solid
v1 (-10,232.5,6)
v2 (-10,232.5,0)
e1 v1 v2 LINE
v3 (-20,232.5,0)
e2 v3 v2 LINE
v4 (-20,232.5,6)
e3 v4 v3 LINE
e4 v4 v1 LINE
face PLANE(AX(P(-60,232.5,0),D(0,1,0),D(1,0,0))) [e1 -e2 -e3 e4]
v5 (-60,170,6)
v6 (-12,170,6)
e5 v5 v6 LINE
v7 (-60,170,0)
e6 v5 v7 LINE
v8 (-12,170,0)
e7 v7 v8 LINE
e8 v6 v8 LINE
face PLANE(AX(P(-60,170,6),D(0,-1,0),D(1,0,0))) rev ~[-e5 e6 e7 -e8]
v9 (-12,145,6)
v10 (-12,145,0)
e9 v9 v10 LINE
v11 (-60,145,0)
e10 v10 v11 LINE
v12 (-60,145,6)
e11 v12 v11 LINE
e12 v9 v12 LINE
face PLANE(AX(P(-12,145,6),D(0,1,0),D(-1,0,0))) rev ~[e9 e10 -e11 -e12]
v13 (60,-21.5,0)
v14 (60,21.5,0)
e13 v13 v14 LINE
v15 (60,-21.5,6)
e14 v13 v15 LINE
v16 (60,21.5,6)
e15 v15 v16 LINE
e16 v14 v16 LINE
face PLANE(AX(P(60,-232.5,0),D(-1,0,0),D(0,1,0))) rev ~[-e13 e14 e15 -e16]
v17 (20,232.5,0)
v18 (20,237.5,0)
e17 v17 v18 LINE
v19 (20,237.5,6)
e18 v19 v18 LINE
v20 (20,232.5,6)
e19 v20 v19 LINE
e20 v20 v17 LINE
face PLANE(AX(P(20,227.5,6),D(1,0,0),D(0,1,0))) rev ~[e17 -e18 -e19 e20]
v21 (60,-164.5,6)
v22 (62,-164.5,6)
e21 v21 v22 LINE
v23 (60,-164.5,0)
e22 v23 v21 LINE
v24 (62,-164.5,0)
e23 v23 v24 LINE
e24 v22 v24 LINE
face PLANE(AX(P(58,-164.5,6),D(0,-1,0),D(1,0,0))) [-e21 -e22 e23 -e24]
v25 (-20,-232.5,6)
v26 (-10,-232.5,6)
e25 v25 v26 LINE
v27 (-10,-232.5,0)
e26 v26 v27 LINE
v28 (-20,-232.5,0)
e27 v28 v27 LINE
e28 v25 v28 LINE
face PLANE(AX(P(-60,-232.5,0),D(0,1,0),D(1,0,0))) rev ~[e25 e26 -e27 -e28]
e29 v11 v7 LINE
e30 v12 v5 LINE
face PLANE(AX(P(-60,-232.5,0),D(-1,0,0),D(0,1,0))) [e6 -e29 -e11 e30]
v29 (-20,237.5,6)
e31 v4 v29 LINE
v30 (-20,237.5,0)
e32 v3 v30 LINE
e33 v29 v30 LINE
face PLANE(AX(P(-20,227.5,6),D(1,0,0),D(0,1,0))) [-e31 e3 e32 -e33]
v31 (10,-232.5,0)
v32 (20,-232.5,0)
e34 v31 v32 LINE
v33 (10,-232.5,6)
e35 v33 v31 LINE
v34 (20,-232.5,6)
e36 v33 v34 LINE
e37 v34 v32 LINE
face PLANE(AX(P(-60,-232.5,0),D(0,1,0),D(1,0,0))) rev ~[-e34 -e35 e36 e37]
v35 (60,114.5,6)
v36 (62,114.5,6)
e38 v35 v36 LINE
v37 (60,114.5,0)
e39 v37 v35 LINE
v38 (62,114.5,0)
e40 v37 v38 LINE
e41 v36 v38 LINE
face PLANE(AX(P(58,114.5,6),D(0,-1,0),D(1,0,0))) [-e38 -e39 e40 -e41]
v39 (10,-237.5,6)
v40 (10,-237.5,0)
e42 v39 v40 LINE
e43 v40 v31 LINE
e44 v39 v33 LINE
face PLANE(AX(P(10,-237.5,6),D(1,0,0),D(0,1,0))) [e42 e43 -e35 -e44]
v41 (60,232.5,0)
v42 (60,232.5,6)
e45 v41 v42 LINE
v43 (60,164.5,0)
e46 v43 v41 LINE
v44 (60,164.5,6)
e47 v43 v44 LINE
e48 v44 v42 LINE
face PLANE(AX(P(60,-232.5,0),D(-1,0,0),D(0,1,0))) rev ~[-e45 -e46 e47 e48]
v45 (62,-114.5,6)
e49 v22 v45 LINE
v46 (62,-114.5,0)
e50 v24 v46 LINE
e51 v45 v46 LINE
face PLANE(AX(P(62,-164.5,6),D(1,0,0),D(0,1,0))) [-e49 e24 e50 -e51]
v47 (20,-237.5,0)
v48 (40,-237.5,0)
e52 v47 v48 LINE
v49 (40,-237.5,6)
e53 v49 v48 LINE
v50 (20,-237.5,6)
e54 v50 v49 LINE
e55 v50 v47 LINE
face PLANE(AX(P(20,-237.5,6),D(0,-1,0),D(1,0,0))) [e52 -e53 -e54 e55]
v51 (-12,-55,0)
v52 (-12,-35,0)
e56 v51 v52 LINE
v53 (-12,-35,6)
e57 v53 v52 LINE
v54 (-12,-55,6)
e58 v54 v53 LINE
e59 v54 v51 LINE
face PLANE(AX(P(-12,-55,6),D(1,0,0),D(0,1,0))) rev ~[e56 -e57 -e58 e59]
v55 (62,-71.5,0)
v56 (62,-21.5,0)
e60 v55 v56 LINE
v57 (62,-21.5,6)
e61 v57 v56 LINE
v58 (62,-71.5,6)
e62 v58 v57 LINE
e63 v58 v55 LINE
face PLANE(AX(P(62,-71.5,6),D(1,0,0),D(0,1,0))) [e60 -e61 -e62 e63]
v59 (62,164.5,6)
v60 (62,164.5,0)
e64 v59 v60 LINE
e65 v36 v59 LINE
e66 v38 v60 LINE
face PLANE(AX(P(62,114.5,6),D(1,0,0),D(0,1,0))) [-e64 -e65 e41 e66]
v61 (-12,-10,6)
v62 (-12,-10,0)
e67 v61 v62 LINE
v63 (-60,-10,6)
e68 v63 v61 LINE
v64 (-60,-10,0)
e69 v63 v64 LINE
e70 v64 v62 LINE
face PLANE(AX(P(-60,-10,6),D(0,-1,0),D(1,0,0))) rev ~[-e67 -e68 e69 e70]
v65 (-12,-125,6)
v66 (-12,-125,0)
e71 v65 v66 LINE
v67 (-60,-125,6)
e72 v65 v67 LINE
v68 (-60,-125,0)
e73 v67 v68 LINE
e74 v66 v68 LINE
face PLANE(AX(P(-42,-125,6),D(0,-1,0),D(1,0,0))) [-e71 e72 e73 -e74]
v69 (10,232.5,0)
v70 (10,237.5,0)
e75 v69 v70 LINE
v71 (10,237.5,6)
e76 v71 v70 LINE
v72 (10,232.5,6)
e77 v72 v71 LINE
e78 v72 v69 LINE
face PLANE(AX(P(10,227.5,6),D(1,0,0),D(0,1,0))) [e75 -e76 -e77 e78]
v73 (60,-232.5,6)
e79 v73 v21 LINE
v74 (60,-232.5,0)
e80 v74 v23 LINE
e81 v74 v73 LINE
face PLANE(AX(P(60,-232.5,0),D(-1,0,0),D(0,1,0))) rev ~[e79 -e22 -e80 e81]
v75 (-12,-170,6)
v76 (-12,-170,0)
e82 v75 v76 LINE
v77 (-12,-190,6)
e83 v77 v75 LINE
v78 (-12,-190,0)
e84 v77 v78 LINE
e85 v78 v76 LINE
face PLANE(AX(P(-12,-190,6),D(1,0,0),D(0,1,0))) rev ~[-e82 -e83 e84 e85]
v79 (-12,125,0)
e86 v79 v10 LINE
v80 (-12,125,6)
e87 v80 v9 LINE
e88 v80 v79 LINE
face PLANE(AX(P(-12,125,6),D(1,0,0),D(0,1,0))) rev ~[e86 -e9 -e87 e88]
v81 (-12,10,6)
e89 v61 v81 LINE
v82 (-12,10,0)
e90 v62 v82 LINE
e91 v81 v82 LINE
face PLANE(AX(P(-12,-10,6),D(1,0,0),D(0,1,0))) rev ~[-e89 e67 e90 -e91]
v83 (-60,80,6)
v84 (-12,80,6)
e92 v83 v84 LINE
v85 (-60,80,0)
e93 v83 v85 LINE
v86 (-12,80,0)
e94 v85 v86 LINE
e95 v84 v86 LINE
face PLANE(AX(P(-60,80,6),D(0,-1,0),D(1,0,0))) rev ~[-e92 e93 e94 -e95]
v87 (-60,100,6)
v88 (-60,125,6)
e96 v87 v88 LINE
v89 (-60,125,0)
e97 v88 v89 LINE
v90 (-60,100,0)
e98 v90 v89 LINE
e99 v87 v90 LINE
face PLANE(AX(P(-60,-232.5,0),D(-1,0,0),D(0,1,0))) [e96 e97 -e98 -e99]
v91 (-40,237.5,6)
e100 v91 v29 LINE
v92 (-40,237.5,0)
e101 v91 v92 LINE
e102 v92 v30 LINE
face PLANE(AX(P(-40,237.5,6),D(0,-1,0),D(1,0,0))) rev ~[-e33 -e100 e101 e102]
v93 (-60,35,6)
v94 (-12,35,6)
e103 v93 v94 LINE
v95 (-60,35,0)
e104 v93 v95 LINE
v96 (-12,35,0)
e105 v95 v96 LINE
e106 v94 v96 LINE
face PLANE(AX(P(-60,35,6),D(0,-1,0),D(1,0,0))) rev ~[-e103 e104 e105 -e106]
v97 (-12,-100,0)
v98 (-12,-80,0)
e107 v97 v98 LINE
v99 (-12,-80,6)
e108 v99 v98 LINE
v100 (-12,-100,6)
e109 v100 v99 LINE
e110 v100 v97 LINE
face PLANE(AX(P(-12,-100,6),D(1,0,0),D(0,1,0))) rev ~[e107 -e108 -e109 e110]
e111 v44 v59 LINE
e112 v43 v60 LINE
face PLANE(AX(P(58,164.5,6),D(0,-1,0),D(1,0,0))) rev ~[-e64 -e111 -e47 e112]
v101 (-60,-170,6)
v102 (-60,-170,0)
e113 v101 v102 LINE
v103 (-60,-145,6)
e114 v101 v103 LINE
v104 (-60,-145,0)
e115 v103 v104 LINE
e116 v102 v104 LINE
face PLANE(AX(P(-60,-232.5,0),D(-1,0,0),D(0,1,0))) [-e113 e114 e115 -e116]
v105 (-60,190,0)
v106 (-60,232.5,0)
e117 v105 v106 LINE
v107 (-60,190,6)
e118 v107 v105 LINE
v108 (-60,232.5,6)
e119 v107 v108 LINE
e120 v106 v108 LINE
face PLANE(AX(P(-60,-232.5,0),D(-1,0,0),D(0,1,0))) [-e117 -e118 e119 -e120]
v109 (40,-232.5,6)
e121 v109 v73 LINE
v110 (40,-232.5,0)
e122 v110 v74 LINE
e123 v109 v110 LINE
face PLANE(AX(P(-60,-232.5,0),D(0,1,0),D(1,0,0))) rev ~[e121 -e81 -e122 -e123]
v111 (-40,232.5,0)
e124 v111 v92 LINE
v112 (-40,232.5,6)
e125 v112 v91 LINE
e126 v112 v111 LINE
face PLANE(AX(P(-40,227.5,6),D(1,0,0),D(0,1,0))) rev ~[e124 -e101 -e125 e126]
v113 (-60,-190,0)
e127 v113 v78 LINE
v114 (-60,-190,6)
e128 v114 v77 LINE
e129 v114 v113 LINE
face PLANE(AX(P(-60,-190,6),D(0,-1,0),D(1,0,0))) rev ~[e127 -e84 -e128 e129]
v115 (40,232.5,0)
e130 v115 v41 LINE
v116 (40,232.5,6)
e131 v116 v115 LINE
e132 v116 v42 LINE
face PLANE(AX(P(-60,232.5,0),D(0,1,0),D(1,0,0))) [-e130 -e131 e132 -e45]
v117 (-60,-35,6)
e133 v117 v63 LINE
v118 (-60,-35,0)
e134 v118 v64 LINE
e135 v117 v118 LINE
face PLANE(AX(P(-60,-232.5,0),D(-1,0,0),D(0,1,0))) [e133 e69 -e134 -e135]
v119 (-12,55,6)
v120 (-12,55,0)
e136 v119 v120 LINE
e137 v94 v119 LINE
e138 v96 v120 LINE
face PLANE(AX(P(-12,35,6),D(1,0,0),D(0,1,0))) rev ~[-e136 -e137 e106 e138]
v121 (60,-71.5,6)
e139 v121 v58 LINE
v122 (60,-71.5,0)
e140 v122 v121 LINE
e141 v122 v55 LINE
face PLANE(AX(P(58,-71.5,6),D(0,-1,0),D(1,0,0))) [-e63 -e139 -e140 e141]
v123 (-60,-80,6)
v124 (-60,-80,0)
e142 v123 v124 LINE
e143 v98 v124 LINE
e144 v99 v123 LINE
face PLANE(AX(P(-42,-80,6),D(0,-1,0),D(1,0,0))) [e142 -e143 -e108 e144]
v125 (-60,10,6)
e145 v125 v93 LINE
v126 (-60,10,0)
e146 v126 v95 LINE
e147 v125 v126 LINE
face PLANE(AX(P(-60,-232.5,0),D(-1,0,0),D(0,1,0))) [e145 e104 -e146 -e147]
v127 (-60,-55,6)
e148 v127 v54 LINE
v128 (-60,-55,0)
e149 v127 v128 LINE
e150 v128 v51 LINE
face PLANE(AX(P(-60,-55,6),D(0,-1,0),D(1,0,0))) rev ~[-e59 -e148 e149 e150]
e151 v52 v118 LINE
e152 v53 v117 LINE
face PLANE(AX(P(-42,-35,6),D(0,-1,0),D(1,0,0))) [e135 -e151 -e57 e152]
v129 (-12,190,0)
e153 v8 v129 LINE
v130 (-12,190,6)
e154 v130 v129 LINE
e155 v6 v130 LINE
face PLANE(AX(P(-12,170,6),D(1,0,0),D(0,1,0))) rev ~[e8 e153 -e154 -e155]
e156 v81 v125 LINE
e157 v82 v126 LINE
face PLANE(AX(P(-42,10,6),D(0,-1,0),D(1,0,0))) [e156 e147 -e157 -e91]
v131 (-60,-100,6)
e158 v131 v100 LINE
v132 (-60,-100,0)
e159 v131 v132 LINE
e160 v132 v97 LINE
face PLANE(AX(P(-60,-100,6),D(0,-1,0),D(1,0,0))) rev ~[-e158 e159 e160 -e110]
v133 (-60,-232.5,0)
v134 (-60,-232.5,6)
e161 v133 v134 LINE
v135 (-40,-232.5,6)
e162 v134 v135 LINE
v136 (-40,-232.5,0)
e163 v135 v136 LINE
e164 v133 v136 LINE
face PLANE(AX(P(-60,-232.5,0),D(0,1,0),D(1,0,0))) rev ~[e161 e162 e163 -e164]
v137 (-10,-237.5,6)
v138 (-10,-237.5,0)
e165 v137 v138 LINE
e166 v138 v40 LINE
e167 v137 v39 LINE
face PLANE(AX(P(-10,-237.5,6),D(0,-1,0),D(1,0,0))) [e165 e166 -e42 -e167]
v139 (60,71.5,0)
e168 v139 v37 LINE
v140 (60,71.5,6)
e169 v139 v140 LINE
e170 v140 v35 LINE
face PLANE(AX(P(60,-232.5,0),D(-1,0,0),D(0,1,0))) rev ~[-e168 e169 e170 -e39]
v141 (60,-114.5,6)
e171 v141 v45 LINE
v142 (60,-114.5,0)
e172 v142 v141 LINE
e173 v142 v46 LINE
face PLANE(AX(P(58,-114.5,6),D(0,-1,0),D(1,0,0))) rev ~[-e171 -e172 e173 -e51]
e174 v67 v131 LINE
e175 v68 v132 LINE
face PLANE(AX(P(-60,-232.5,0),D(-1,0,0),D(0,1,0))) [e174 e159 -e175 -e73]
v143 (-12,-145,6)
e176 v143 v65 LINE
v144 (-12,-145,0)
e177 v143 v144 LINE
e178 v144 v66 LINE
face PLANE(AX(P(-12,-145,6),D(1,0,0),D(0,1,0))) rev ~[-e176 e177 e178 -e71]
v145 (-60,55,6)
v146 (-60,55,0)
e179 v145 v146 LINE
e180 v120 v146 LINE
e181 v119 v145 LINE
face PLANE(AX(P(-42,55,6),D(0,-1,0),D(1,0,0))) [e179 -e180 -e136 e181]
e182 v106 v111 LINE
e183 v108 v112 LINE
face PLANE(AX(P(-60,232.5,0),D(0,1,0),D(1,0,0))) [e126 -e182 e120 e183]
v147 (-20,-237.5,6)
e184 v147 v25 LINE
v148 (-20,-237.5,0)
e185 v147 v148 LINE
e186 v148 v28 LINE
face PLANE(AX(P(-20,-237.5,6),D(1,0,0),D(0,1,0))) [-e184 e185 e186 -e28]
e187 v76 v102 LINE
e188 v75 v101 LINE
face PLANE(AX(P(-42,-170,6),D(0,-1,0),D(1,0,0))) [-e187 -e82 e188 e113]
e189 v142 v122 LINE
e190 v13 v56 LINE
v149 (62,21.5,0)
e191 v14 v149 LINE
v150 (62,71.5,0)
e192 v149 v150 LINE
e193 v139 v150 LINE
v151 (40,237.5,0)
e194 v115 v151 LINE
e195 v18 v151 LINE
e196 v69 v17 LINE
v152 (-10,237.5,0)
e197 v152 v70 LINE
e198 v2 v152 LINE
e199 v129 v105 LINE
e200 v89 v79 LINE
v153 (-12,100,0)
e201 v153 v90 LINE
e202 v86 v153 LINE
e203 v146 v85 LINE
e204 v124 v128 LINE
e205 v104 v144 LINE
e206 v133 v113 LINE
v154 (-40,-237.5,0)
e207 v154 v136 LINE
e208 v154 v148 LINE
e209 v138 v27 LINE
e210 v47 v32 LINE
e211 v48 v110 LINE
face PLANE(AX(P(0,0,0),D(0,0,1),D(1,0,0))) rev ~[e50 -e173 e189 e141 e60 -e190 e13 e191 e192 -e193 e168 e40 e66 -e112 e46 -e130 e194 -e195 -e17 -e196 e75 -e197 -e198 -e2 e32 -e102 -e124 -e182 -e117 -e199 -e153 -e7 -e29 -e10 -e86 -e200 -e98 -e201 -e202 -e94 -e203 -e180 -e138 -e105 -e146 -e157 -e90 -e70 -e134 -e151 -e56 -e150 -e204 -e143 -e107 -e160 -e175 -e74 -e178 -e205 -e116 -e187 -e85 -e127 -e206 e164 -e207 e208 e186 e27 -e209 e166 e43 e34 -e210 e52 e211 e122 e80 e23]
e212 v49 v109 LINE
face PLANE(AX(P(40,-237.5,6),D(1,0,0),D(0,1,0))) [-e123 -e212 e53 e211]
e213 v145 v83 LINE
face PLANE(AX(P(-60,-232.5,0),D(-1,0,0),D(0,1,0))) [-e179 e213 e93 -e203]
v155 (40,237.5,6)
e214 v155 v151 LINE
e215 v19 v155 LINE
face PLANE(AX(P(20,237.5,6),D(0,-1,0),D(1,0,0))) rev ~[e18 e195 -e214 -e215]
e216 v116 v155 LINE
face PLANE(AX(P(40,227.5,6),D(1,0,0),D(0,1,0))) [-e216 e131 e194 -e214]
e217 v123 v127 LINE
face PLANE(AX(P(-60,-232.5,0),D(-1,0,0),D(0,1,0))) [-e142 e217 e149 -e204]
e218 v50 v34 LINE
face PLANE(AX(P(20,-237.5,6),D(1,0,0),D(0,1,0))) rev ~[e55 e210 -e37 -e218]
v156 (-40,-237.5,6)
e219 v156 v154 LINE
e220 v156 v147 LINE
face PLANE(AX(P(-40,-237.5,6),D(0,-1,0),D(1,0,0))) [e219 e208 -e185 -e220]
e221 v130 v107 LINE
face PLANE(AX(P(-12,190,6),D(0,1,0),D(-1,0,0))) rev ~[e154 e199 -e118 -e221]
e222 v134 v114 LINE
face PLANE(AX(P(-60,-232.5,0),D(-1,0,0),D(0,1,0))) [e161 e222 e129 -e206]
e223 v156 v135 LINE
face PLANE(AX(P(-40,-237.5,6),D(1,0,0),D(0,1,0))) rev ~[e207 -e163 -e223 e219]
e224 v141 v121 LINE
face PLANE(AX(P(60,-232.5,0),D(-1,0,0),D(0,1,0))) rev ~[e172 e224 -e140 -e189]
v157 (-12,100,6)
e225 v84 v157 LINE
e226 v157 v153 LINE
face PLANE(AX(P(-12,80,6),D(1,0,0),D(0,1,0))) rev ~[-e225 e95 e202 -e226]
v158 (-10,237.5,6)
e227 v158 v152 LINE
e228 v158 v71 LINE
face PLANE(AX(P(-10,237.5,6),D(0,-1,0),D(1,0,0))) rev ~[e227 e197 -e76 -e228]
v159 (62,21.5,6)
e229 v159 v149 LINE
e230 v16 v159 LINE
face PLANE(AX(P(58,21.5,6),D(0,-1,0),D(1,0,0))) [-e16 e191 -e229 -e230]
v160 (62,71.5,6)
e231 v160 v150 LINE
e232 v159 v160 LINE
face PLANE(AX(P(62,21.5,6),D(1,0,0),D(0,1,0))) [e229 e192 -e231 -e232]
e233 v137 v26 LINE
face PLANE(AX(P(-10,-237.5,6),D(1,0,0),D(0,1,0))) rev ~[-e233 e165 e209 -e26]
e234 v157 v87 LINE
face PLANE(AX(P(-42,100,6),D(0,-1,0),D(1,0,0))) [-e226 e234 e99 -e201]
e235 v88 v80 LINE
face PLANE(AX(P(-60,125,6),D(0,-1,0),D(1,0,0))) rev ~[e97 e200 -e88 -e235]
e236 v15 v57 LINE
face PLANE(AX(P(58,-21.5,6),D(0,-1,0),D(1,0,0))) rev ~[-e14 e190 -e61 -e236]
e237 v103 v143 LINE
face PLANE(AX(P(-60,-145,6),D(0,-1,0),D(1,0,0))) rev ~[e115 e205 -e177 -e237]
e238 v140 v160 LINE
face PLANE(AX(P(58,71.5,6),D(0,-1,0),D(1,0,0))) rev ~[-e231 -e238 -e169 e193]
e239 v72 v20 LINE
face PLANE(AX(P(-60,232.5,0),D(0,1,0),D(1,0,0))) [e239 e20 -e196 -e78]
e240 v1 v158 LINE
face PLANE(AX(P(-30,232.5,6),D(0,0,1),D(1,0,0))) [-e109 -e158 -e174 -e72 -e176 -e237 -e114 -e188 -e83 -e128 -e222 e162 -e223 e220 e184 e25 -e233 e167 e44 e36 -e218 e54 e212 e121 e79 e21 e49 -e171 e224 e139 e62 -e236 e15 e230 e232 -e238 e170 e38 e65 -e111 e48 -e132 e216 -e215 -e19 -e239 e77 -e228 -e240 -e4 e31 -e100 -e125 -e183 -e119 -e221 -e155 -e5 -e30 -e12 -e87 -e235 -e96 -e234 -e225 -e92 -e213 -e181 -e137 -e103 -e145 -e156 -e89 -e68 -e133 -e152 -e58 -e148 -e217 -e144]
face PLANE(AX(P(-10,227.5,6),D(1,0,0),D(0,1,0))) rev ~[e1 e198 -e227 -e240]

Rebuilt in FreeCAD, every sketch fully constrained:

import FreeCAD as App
import Part
import Sketcher
from FreeCAD import Vector
Q = App.Units.Quantity

doc = App.newDocument("Part")
body = doc.addObject("PartDesign::Body", "Body")

sketch1 = body.newObject("Sketcher::SketchObject", "Sketch")
sketch1.AttachmentSupport = (doc.getObject("XY_Plane"), [""])
sketch1.MapMode = "FlatFace"
sketch1.addGeometry(Part.LineSegment(Vector(-60, 232.5, 0), Vector(-60, -232.5, 0)), False)
sketch1.addGeometry(Part.LineSegment(Vector(-60, -232.5, 0), Vector(60, -232.5, 0)), False)
sketch1.addGeometry(Part.LineSegment(Vector(60, -232.5, 0), Vector(60, 232.5, 0)), False)
sketch1.addGeometry(Part.LineSegment(Vector(60, 232.5, 0), Vector(-60, 232.5, 0)), False)
sketch1.addConstraint(Sketcher.Constraint("Coincident", 0, 2, 1, 1))
sketch1.addConstraint(Sketcher.Constraint("Coincident", 1, 2, 2, 1))
sketch1.addConstraint(Sketcher.Constraint("Coincident", 2, 2, 3, 1))
sketch1.addConstraint(Sketcher.Constraint("Coincident", 3, 2, 0, 1))
sketch1.addConstraint(Sketcher.Constraint("Vertical", 0))
sketch1.addConstraint(Sketcher.Constraint("Horizontal", 1))
sketch1.addConstraint(Sketcher.Constraint("Vertical", 2))
sketch1.addConstraint(Sketcher.Constraint("Horizontal", 3))
sketch1.addConstraint(Sketcher.Constraint("Symmetric", 0, 2, 2, 2, -1, 1))
sketch1.addConstraint(Sketcher.Constraint("DistanceX", 1, 1, 1, 2, Q("120 mm")))
sketch1.addConstraint(Sketcher.Constraint("DistanceY", 0, 2, 0, 1, Q("465 mm")))
pad1 = body.newObject("PartDesign::Pad", "Pad")
pad1.Profile = sketch1
pad1.Length = 6

sketch2 = body.newObject("Sketcher::SketchObject", "Sketch001")
sketch2.AttachmentSupport = (doc.getObject("XY_Plane"), [""])
sketch2.MapMode = "FlatFace"
sketch2.AttachmentOffset = App.Placement(Vector(0, 0, 6), App.Rotation())
sketch2.addGeometry(Part.LineSegment(Vector(-12, 190, 0), Vector(-42, 190, 0)), False)
sketch2.addGeometry(Part.LineSegment(Vector(-42, 190, 0), Vector(-42, 170, 0)), False)
sketch2.addGeometry(Part.LineSegment(Vector(-42, 170, 0), Vector(-12, 170, 0)), False)
sketch2.addGeometry(Part.LineSegment(Vector(-12, 170, 0), Vector(-12, 190, 0)), False)
sketch2.addGeometry(Part.LineSegment(Vector(-12, 145, 0), Vector(-42, 145, 0)), False)
sketch2.addGeometry(Part.LineSegment(Vector(-42, 145, 0), Vector(-42, 125, 0)), False)
sketch2.addGeometry(Part.LineSegment(Vector(-42, 125, 0), Vector(-12, 125, 0)), False)
sketch2.addGeometry(Part.LineSegment(Vector(-12, 125, 0), Vector(-12, 145, 0)), False)
sketch2.addGeometry(Part.LineSegment(Vector(-42, 100, 0), Vector(-42, 80, 0)), False)
sketch2.addGeometry(Part.LineSegment(Vector(-42, 80, 0), Vector(-12, 80, 0)), False)
sketch2.addGeometry(Part.LineSegment(Vector(-12, 80, 0), Vector(-12, 100, 0)), False)
sketch2.addGeometry(Part.LineSegment(Vector(-12, 100, 0), Vector(-42, 100, 0)), False)
sketch2.addGeometry(Part.LineSegment(Vector(-42, 55, 0), Vector(-42, 35, 0)), False)
sketch2.addGeometry(Part.LineSegment(Vector(-42, 35, 0), Vector(-12, 35, 0)), False)
sketch2.addGeometry(Part.LineSegment(Vector(-12, 35, 0), Vector(-12, 55, 0)), False)
sketch2.addGeometry(Part.LineSegment(Vector(-12, 55, 0), Vector(-42, 55, 0)), False)
sketch2.addGeometry(Part.LineSegment(Vector(-42, 10, 0), Vector(-42, -10, 0)), False)
sketch2.addGeometry(Part.LineSegment(Vector(-42, -10, 0), Vector(-12, -10, 0)), False)
sketch2.addGeometry(Part.LineSegment(Vector(-12, -10, 0), Vector(-12, 10, 0)), False)
sketch2.addGeometry(Part.LineSegment(Vector(-12, 10, 0), Vector(-42, 10, 0)), False)
sketch2.addGeometry(Part.LineSegment(Vector(-42, -35, 0), Vector(-42, -55, 0)), False)
sketch2.addGeometry(Part.LineSegment(Vector(-42, -55, 0), Vector(-12, -55, 0)), False)
sketch2.addGeometry(Part.LineSegment(Vector(-12, -55, 0), Vector(-12, -35, 0)), False)
sketch2.addGeometry(Part.LineSegment(Vector(-12, -35, 0), Vector(-42, -35, 0)), False)
sketch2.addGeometry(Part.LineSegment(Vector(-42, -80, 0), Vector(-42, -100, 0)), False)
sketch2.addGeometry(Part.LineSegment(Vector(-42, -100, 0), Vector(-12, -100, 0)), False)
sketch2.addGeometry(Part.LineSegment(Vector(-12, -100, 0), Vector(-12, -80, 0)), False)
sketch2.addGeometry(Part.LineSegment(Vector(-12, -80, 0), Vector(-42, -80, 0)), False)
sketch2.addGeometry(Part.LineSegment(Vector(-42, -125, 0), Vector(-42, -145, 0)), False)
sketch2.addGeometry(Part.LineSegment(Vector(-42, -145, 0), Vector(-12, -145, 0)), False)
sketch2.addGeometry(Part.LineSegment(Vector(-12, -145, 0), Vector(-12, -125, 0)), False)
sketch2.addGeometry(Part.LineSegment(Vector(-12, -125, 0), Vector(-42, -125, 0)), False)
sketch2.addGeometry(Part.LineSegment(Vector(-42, -170, 0), Vector(-42, -190, 0)), False)
sketch2.addGeometry(Part.LineSegment(Vector(-42, -190, 0), Vector(-12, -190, 0)), False)
sketch2.addGeometry(Part.LineSegment(Vector(-12, -190, 0), Vector(-12, -170, 0)), False)
sketch2.addGeometry(Part.LineSegment(Vector(-12, -170, 0), Vector(-42, -170, 0)), False)
sketch2.addConstraint(Sketcher.Constraint("Coincident", 0, 2, 1, 1))
sketch2.addConstraint(Sketcher.Constraint("Coincident", 1, 2, 2, 1))
sketch2.addConstraint(Sketcher.Constraint("Coincident", 2, 2, 3, 1))
sketch2.addConstraint(Sketcher.Constraint("Coincident", 3, 2, 0, 1))
sketch2.addConstraint(Sketcher.Constraint("Coincident", 4, 2, 5, 1))
sketch2.addConstraint(Sketcher.Constraint("Coincident", 5, 2, 6, 1))
sketch2.addConstraint(Sketcher.Constraint("Coincident", 6, 2, 7, 1))
sketch2.addConstraint(Sketcher.Constraint("Coincident", 7, 2, 4, 1))
sketch2.addConstraint(Sketcher.Constraint("Coincident", 8, 2, 9, 1))
sketch2.addConstraint(Sketcher.Constraint("Coincident", 9, 2, 10, 1))
sketch2.addConstraint(Sketcher.Constraint("Coincident", 10, 2, 11, 1))
sketch2.addConstraint(Sketcher.Constraint("Coincident", 11, 2, 8, 1))
sketch2.addConstraint(Sketcher.Constraint("Coincident", 12, 2, 13, 1))
sketch2.addConstraint(Sketcher.Constraint("Coincident", 13, 2, 14, 1))
sketch2.addConstraint(Sketcher.Constraint("Coincident", 14, 2, 15, 1))
sketch2.addConstraint(Sketcher.Constraint("Coincident", 15, 2, 12, 1))
sketch2.addConstraint(Sketcher.Constraint("Coincident", 16, 2, 17, 1))
sketch2.addConstraint(Sketcher.Constraint("Coincident", 17, 2, 18, 1))
sketch2.addConstraint(Sketcher.Constraint("Coincident", 18, 2, 19, 1))
sketch2.addConstraint(Sketcher.Constraint("Coincident", 19, 2, 16, 1))
sketch2.addConstraint(Sketcher.Constraint("Coincident", 20, 2, 21, 1))
sketch2.addConstraint(Sketcher.Constraint("Coincident", 21, 2, 22, 1))
sketch2.addConstraint(Sketcher.Constraint("Coincident", 22, 2, 23, 1))
sketch2.addConstraint(Sketcher.Constraint("Coincident", 23, 2, 20, 1))
sketch2.addConstraint(Sketcher.Constraint("Coincident", 24, 2, 25, 1))
sketch2.addConstraint(Sketcher.Constraint("Coincident", 25, 2, 26, 1))
sketch2.addConstraint(Sketcher.Constraint("Coincident", 26, 2, 27, 1))
sketch2.addConstraint(Sketcher.Constraint("Coincident", 27, 2, 24, 1))
sketch2.addConstraint(Sketcher.Constraint("Coincident", 28, 2, 29, 1))
sketch2.addConstraint(Sketcher.Constraint("Coincident", 29, 2, 30, 1))
sketch2.addConstraint(Sketcher.Constraint("Coincident", 30, 2, 31, 1))
sketch2.addConstraint(Sketcher.Constraint("Coincident", 31, 2, 28, 1))
sketch2.addConstraint(Sketcher.Constraint("Coincident", 32, 2, 33, 1))
sketch2.addConstraint(Sketcher.Constraint("Coincident", 33, 2, 34, 1))
sketch2.addConstraint(Sketcher.Constraint("Coincident", 34, 2, 35, 1))
sketch2.addConstraint(Sketcher.Constraint("Coincident", 35, 2, 32, 1))
sketch2.addConstraint(Sketcher.Constraint("Horizontal", 0))
sketch2.addConstraint(Sketcher.Constraint("Vertical", 1))
sketch2.addConstraint(Sketcher.Constraint("Horizontal", 2))
sketch2.addConstraint(Sketcher.Constraint("Vertical", 3))
sketch2.addConstraint(Sketcher.Constraint("Horizontal", 4))
sketch2.addConstraint(Sketcher.Constraint("Vertical", 5))
sketch2.addConstraint(Sketcher.Constraint("Horizontal", 6))
sketch2.addConstraint(Sketcher.Constraint("Vertical", 7))
sketch2.addConstraint(Sketcher.Constraint("Vertical", 8))
sketch2.addConstraint(Sketcher.Constraint("Horizontal", 9))
sketch2.addConstraint(Sketcher.Constraint("Vertical", 10))
sketch2.addConstraint(Sketcher.Constraint("Horizontal", 11))
sketch2.addConstraint(Sketcher.Constraint("Vertical", 12))
sketch2.addConstraint(Sketcher.Constraint("Horizontal", 13))
sketch2.addConstraint(Sketcher.Constraint("Vertical", 14))
sketch2.addConstraint(Sketcher.Constraint("Horizontal", 15))
sketch2.addConstraint(Sketcher.Constraint("Vertical", 16))
sketch2.addConstraint(Sketcher.Constraint("Horizontal", 17))
sketch2.addConstraint(Sketcher.Constraint("Vertical", 18))
sketch2.addConstraint(Sketcher.Constraint("Horizontal", 19))
sketch2.addConstraint(Sketcher.Constraint("Vertical", 20))
sketch2.addConstraint(Sketcher.Constraint("Horizontal", 21))
sketch2.addConstraint(Sketcher.Constraint("Vertical", 22))
sketch2.addConstraint(Sketcher.Constraint("Horizontal", 23))
sketch2.addConstraint(Sketcher.Constraint("Vertical", 24))
sketch2.addConstraint(Sketcher.Constraint("Horizontal", 25))
sketch2.addConstraint(Sketcher.Constraint("Vertical", 26))
sketch2.addConstraint(Sketcher.Constraint("Horizontal", 27))
sketch2.addConstraint(Sketcher.Constraint("Vertical", 28))
sketch2.addConstraint(Sketcher.Constraint("Horizontal", 29))
sketch2.addConstraint(Sketcher.Constraint("Vertical", 30))
sketch2.addConstraint(Sketcher.Constraint("Horizontal", 31))
sketch2.addConstraint(Sketcher.Constraint("Vertical", 32))
sketch2.addConstraint(Sketcher.Constraint("Horizontal", 33))
sketch2.addConstraint(Sketcher.Constraint("Vertical", 34))
sketch2.addConstraint(Sketcher.Constraint("Horizontal", 35))
sketch2.addConstraint(Sketcher.Constraint("Symmetric", 15, 2, 20, 2, -1))
sketch2.addConstraint(Sketcher.Constraint("Symmetric", 13, 2, 22, 2, -1))
sketch2.addConstraint(Sketcher.Constraint("Symmetric", 11, 2, 24, 2, -1))
sketch2.addConstraint(Sketcher.Constraint("Symmetric", 9, 2, 26, 2, -1))
sketch2.addConstraint(Sketcher.Constraint("Symmetric", 4, 2, 28, 2, -1))
sketch2.addConstraint(Sketcher.Constraint("Symmetric", 6, 2, 30, 2, -1))
sketch2.addConstraint(Sketcher.Constraint("Symmetric", 0, 2, 32, 2, -1))
sketch2.addConstraint(Sketcher.Constraint("Symmetric", 2, 2, 34, 2, -1))
sketch2.addConstraint(Sketcher.Constraint("Vertical", 1, 2, 4, 2))
sketch2.addConstraint(Sketcher.Constraint("Vertical", 3, 2, 6, 2))
sketch2.addConstraint(Sketcher.Constraint("Vertical", 5, 2, 8, 2))
sketch2.addConstraint(Sketcher.Constraint("Vertical", 7, 2, 9, 2))
sketch2.addConstraint(Sketcher.Constraint("Vertical", 11, 2, 12, 2))
sketch2.addConstraint(Sketcher.Constraint("Vertical", 10, 2, 13, 2))
sketch2.addConstraint(Sketcher.Constraint("Vertical", 15, 2, 16, 2))
sketch2.addConstraint(Sketcher.Constraint("Vertical", 14, 2, 17, 2))
sketch2.addConstraint(Sketcher.Constraint("Equal", 3, 5))
sketch2.addConstraint(Sketcher.Constraint("Equal", 7, 8))
sketch2.addConstraint(Sketcher.Constraint("Equal", 10, 12))
sketch2.addConstraint(Sketcher.Constraint("Equal", 14, 16))
sketch2.addConstraint(Sketcher.Constraint("DistanceX", 0, 2, 0, 1, Q("30 mm")))
sketch2.addConstraint(Sketcher.Constraint("DistanceY", 1, 2, 1, 1, Q("20 mm")))
sketch2.addConstraint(Sketcher.Constraint("DistanceX", 0, 2, -1, 1, Q("42 mm")))
sketch2.addConstraint(Sketcher.Constraint("DistanceY", -1, 1, 0, 2, Q("190 mm")))
sketch2.addConstraint(Sketcher.Constraint("DistanceY", -1, 1, 4, 2, Q("145 mm")))
sketch2.addConstraint(Sketcher.Constraint("DistanceY", -1, 1, 8, 2, Q("80 mm")))
sketch2.addConstraint(Sketcher.Constraint("DistanceY", -1, 1, 12, 2, Q("35 mm")))
sketch2.addConstraint(Sketcher.Constraint("DistanceY", 16, 2, -1, 1, Q("10 mm")))
pocket1 = body.newObject("PartDesign::Pocket", "Pocket")
pocket1.Profile = sketch2
pocket1.Length = 8

sketch3 = body.newObject("Sketcher::SketchObject", "Sketch002")
sketch3.AttachmentSupport = (doc.getObject("XY_Plane"), [""])
sketch3.MapMode = "FlatFace"
sketch3.AttachmentOffset = App.Placement(Vector(0, 0, 6), App.Rotation())
sketch3.addGeometry(Part.LineSegment(Vector(-40, 237.5, 0), Vector(-40, 227.5, 0)), False)
sketch3.addGeometry(Part.LineSegment(Vector(-40, 227.5, 0), Vector(-20, 227.5, 0)), False)
sketch3.addGeometry(Part.LineSegment(Vector(-20, 227.5, 0), Vector(-20, 237.5, 0)), False)
sketch3.addGeometry(Part.LineSegment(Vector(-20, 237.5, 0), Vector(-40, 237.5, 0)), False)
sketch3.addGeometry(Part.LineSegment(Vector(-10, 237.5, 0), Vector(-10, 227.5, 0)), False)
sketch3.addGeometry(Part.LineSegment(Vector(-10, 227.5, 0), Vector(10, 227.5, 0)), False)
sketch3.addGeometry(Part.LineSegment(Vector(10, 227.5, 0), Vector(10, 237.5, 0)), False)
sketch3.addGeometry(Part.LineSegment(Vector(10, 237.5, 0), Vector(-10, 237.5, 0)), False)
sketch3.addGeometry(Part.LineSegment(Vector(20, 237.5, 0), Vector(20, 227.5, 0)), False)
sketch3.addGeometry(Part.LineSegment(Vector(20, 227.5, 0), Vector(40, 227.5, 0)), False)
sketch3.addGeometry(Part.LineSegment(Vector(40, 227.5, 0), Vector(40, 237.5, 0)), False)
sketch3.addGeometry(Part.LineSegment(Vector(40, 237.5, 0), Vector(20, 237.5, 0)), False)
sketch3.addGeometry(Part.LineSegment(Vector(-40, -227.5, 0), Vector(-40, -237.5, 0)), False)
sketch3.addGeometry(Part.LineSegment(Vector(-40, -237.5, 0), Vector(-20, -237.5, 0)), False)
sketch3.addGeometry(Part.LineSegment(Vector(-20, -237.5, 0), Vector(-20, -227.5, 0)), False)
sketch3.addGeometry(Part.LineSegment(Vector(-20, -227.5, 0), Vector(-40, -227.5, 0)), False)
sketch3.addGeometry(Part.LineSegment(Vector(-10, -227.5, 0), Vector(-10, -237.5, 0)), False)
sketch3.addGeometry(Part.LineSegment(Vector(-10, -237.5, 0), Vector(10, -237.5, 0)), False)
sketch3.addGeometry(Part.LineSegment(Vector(10, -237.5, 0), Vector(10, -227.5, 0)), False)
sketch3.addGeometry(Part.LineSegment(Vector(10, -227.5, 0), Vector(-10, -227.5, 0)), False)
sketch3.addGeometry(Part.LineSegment(Vector(20, -227.5, 0), Vector(20, -237.5, 0)), False)
sketch3.addGeometry(Part.LineSegment(Vector(20, -237.5, 0), Vector(40, -237.5, 0)), False)
sketch3.addGeometry(Part.LineSegment(Vector(40, -237.5, 0), Vector(40, -227.5, 0)), False)
sketch3.addGeometry(Part.LineSegment(Vector(40, -227.5, 0), Vector(20, -227.5, 0)), False)
sketch3.addGeometry(Part.LineSegment(Vector(58, 164.5, 0), Vector(58, 114.5, 0)), False)
sketch3.addGeometry(Part.LineSegment(Vector(58, 114.5, 0), Vector(62, 114.5, 0)), False)
sketch3.addGeometry(Part.LineSegment(Vector(62, 114.5, 0), Vector(62, 164.5, 0)), False)
sketch3.addGeometry(Part.LineSegment(Vector(62, 164.5, 0), Vector(58, 164.5, 0)), False)
sketch3.addGeometry(Part.LineSegment(Vector(58, 71.5, 0), Vector(58, 21.5, 0)), False)
sketch3.addGeometry(Part.LineSegment(Vector(58, 21.5, 0), Vector(62, 21.5, 0)), False)
sketch3.addGeometry(Part.LineSegment(Vector(62, 21.5, 0), Vector(62, 71.5, 0)), False)
sketch3.addGeometry(Part.LineSegment(Vector(62, 71.5, 0), Vector(58, 71.5, 0)), False)
sketch3.addGeometry(Part.LineSegment(Vector(58, -21.5, 0), Vector(58, -71.5, 0)), False)
sketch3.addGeometry(Part.LineSegment(Vector(58, -71.5, 0), Vector(62, -71.5, 0)), False)
sketch3.addGeometry(Part.LineSegment(Vector(62, -71.5, 0), Vector(62, -21.5, 0)), False)
sketch3.addGeometry(Part.LineSegment(Vector(62, -21.5, 0), Vector(58, -21.5, 0)), False)
sketch3.addGeometry(Part.LineSegment(Vector(58, -114.5, 0), Vector(58, -164.5, 0)), False)
sketch3.addGeometry(Part.LineSegment(Vector(58, -164.5, 0), Vector(62, -164.5, 0)), False)
sketch3.addGeometry(Part.LineSegment(Vector(62, -164.5, 0), Vector(62, -114.5, 0)), False)
sketch3.addGeometry(Part.LineSegment(Vector(62, -114.5, 0), Vector(58, -114.5, 0)), False)
sketch3.addConstraint(Sketcher.Constraint("Coincident", 0, 2, 1, 1))
sketch3.addConstraint(Sketcher.Constraint("Coincident", 1, 2, 2, 1))
sketch3.addConstraint(Sketcher.Constraint("Coincident", 2, 2, 3, 1))
sketch3.addConstraint(Sketcher.Constraint("Coincident", 3, 2, 0, 1))
sketch3.addConstraint(Sketcher.Constraint("Coincident", 4, 2, 5, 1))
sketch3.addConstraint(Sketcher.Constraint("Coincident", 5, 2, 6, 1))
sketch3.addConstraint(Sketcher.Constraint("Coincident", 6, 2, 7, 1))
sketch3.addConstraint(Sketcher.Constraint("Coincident", 7, 2, 4, 1))
sketch3.addConstraint(Sketcher.Constraint("Coincident", 8, 2, 9, 1))
sketch3.addConstraint(Sketcher.Constraint("Coincident", 9, 2, 10, 1))
sketch3.addConstraint(Sketcher.Constraint("Coincident", 10, 2, 11, 1))
sketch3.addConstraint(Sketcher.Constraint("Coincident", 11, 2, 8, 1))
sketch3.addConstraint(Sketcher.Constraint("Coincident", 12, 2, 13, 1))
sketch3.addConstraint(Sketcher.Constraint("Coincident", 13, 2, 14, 1))
sketch3.addConstraint(Sketcher.Constraint("Coincident", 14, 2, 15, 1))
sketch3.addConstraint(Sketcher.Constraint("Coincident", 15, 2, 12, 1))
sketch3.addConstraint(Sketcher.Constraint("Coincident", 16, 2, 17, 1))
sketch3.addConstraint(Sketcher.Constraint("Coincident", 17, 2, 18, 1))
sketch3.addConstraint(Sketcher.Constraint("Coincident", 18, 2, 19, 1))
sketch3.addConstraint(Sketcher.Constraint("Coincident", 19, 2, 16, 1))
sketch3.addConstraint(Sketcher.Constraint("Coincident", 20, 2, 21, 1))
sketch3.addConstraint(Sketcher.Constraint("Coincident", 21, 2, 22, 1))
sketch3.addConstraint(Sketcher.Constraint("Coincident", 22, 2, 23, 1))
sketch3.addConstraint(Sketcher.Constraint("Coincident", 23, 2, 20, 1))
sketch3.addConstraint(Sketcher.Constraint("Coincident", 24, 2, 25, 1))
sketch3.addConstraint(Sketcher.Constraint("Coincident", 25, 2, 26, 1))
sketch3.addConstraint(Sketcher.Constraint("Coincident", 26, 2, 27, 1))
sketch3.addConstraint(Sketcher.Constraint("Coincident", 27, 2, 24, 1))
sketch3.addConstraint(Sketcher.Constraint("Coincident", 28, 2, 29, 1))
sketch3.addConstraint(Sketcher.Constraint("Coincident", 29, 2, 30, 1))
sketch3.addConstraint(Sketcher.Constraint("Coincident", 30, 2, 31, 1))
sketch3.addConstraint(Sketcher.Constraint("Coincident", 31, 2, 28, 1))
sketch3.addConstraint(Sketcher.Constraint("Coincident", 32, 2, 33, 1))
sketch3.addConstraint(Sketcher.Constraint("Coincident", 33, 2, 34, 1))
sketch3.addConstraint(Sketcher.Constraint("Coincident", 34, 2, 35, 1))
sketch3.addConstraint(Sketcher.Constraint("Coincident", 35, 2, 32, 1))
sketch3.addConstraint(Sketcher.Constraint("Coincident", 36, 2, 37, 1))
sketch3.addConstraint(Sketcher.Constraint("Coincident", 37, 2, 38, 1))
sketch3.addConstraint(Sketcher.Constraint("Coincident", 38, 2, 39, 1))
sketch3.addConstraint(Sketcher.Constraint("Coincident", 39, 2, 36, 1))
sketch3.addConstraint(Sketcher.Constraint("Vertical", 0))
sketch3.addConstraint(Sketcher.Constraint("Horizontal", 1))
sketch3.addConstraint(Sketcher.Constraint("Vertical", 2))
sketch3.addConstraint(Sketcher.Constraint("Horizontal", 3))
sketch3.addConstraint(Sketcher.Constraint("Vertical", 4))
sketch3.addConstraint(Sketcher.Constraint("Horizontal", 5))
sketch3.addConstraint(Sketcher.Constraint("Vertical", 6))
sketch3.addConstraint(Sketcher.Constraint("Horizontal", 7))
sketch3.addConstraint(Sketcher.Constraint("Vertical", 8))
sketch3.addConstraint(Sketcher.Constraint("Horizontal", 9))
sketch3.addConstraint(Sketcher.Constraint("Vertical", 10))
sketch3.addConstraint(Sketcher.Constraint("Horizontal", 11))
sketch3.addConstraint(Sketcher.Constraint("Vertical", 12))
sketch3.addConstraint(Sketcher.Constraint("Horizontal", 13))
sketch3.addConstraint(Sketcher.Constraint("Vertical", 14))
sketch3.addConstraint(Sketcher.Constraint("Horizontal", 15))
sketch3.addConstraint(Sketcher.Constraint("Vertical", 16))
sketch3.addConstraint(Sketcher.Constraint("Horizontal", 17))
sketch3.addConstraint(Sketcher.Constraint("Vertical", 18))
sketch3.addConstraint(Sketcher.Constraint("Horizontal", 19))
sketch3.addConstraint(Sketcher.Constraint("Vertical", 20))
sketch3.addConstraint(Sketcher.Constraint("Horizontal", 21))
sketch3.addConstraint(Sketcher.Constraint("Vertical", 22))
sketch3.addConstraint(Sketcher.Constraint("Horizontal", 23))
sketch3.addConstraint(Sketcher.Constraint("Vertical", 24))
sketch3.addConstraint(Sketcher.Constraint("Horizontal", 25))
sketch3.addConstraint(Sketcher.Constraint("Vertical", 26))
sketch3.addConstraint(Sketcher.Constraint("Horizontal", 27))
sketch3.addConstraint(Sketcher.Constraint("Vertical", 28))
sketch3.addConstraint(Sketcher.Constraint("Horizontal", 29))
sketch3.addConstraint(Sketcher.Constraint("Vertical", 30))
sketch3.addConstraint(Sketcher.Constraint("Horizontal", 31))
sketch3.addConstraint(Sketcher.Constraint("Vertical", 32))
sketch3.addConstraint(Sketcher.Constraint("Horizontal", 33))
sketch3.addConstraint(Sketcher.Constraint("Vertical", 34))
sketch3.addConstraint(Sketcher.Constraint("Horizontal", 35))
sketch3.addConstraint(Sketcher.Constraint("Vertical", 36))
sketch3.addConstraint(Sketcher.Constraint("Horizontal", 37))
sketch3.addConstraint(Sketcher.Constraint("Vertical", 38))
sketch3.addConstraint(Sketcher.Constraint("Horizontal", 39))
sketch3.addConstraint(Sketcher.Constraint("Symmetric", 10, 2, 12, 2, -1, 1))
sketch3.addConstraint(Sketcher.Constraint("Symmetric", 8, 2, 14, 2, -1, 1))
sketch3.addConstraint(Sketcher.Constraint("Symmetric", 6, 2, 16, 2, -1, 1))
sketch3.addConstraint(Sketcher.Constraint("Symmetric", 4, 2, 18, 2, -1, 1))
sketch3.addConstraint(Sketcher.Constraint("Symmetric", 2, 2, 20, 2, -1, 1))
sketch3.addConstraint(Sketcher.Constraint("Symmetric", 0, 2, 22, 2, -1, 1))
sketch3.addConstraint(Sketcher.Constraint("Symmetric", 1, 2, 8, 2, -2))
sketch3.addConstraint(Sketcher.Constraint("Symmetric", 3, 2, 10, 2, -2))
sketch3.addConstraint(Sketcher.Constraint("Symmetric", 31, 2, 32, 2, -1))
sketch3.addConstraint(Sketcher.Constraint("Symmetric", 29, 2, 34, 2, -1))
sketch3.addConstraint(Sketcher.Constraint("Symmetric", 27, 2, 36, 2, -1))
sketch3.addConstraint(Sketcher.Constraint("Symmetric", 25, 2, 38, 2, -1))
sketch3.addConstraint(Sketcher.Constraint("Horizontal", 1, 2, 4, 2))
sketch3.addConstraint(Sketcher.Constraint("Horizontal", 3, 2, 6, 2))
sketch3.addConstraint(Sketcher.Constraint("Vertical", 7, 2, 16, 2))
sketch3.addConstraint(Sketcher.Constraint("Vertical", 27, 2, 28, 2))
sketch3.addConstraint(Sketcher.Constraint("Vertical", 26, 2, 29, 2))
sketch3.addConstraint(Sketcher.Constraint("Equal", 3, 5))
sketch3.addConstraint(Sketcher.Constraint("Equal", 26, 28))
sketch3.addConstraint(Sketcher.Constraint("DistanceX", 1, 1, 1, 2, Q("20 mm")))
sketch3.addConstraint(Sketcher.Constraint("DistanceX", 25, 1, 25, 2, Q("4 mm")))
sketch3.addConstraint(Sketcher.Constraint("DistanceY", 0, 2, 0, 1, Q("10 mm")))
sketch3.addConstraint(Sketcher.Constraint("DistanceY", 24, 2, 24, 1, Q("50 mm")))
sketch3.addConstraint(Sketcher.Constraint("DistanceX", 0, 2, -1, 1, Q("40 mm")))
sketch3.addConstraint(Sketcher.Constraint("DistanceX", -1, 1, 24, 2, Q("58 mm")))
sketch3.addConstraint(Sketcher.Constraint("DistanceY", 12, 2, 0, 2, Q("465 mm")))
sketch3.addConstraint(Sketcher.Constraint("DistanceY", 24, 2, 9, 2, Q("113 mm")))
sketch3.addConstraint(Sketcher.Constraint("DistanceY", 28, 2, 24, 2, Q("93 mm")))
pad2 = body.newObject("PartDesign::Pad", "Pad001")
pad2.Profile = sketch3
pad2.Length = 6
pad2.Reversed = True

sketch4 = body.newObject("Sketcher::SketchObject", "Sketch003")
sketch4.AttachmentSupport = (doc.getObject("XY_Plane"), [""])
sketch4.MapMode = "FlatFace"
sketch4.AttachmentOffset = App.Placement(Vector(0, 0, 6), App.Rotation())
sketch4.addGeometry(Part.LineSegment(Vector(-60, 190, 0), Vector(-60, 170, 0)), False)
sketch4.addGeometry(Part.LineSegment(Vector(-60, 170, 0), Vector(-42, 170, 0)), False)
sketch4.addGeometry(Part.LineSegment(Vector(-42, 170, 0), Vector(-42, 190, 0)), False)
sketch4.addGeometry(Part.LineSegment(Vector(-42, 190, 0), Vector(-60, 190, 0)), False)
sketch4.addGeometry(Part.LineSegment(Vector(-60, 145, 0), Vector(-60, 125, 0)), False)
sketch4.addGeometry(Part.LineSegment(Vector(-60, 125, 0), Vector(-42, 125, 0)), False)
sketch4.addGeometry(Part.LineSegment(Vector(-42, 125, 0), Vector(-42, 145, 0)), False)
sketch4.addGeometry(Part.LineSegment(Vector(-42, 145, 0), Vector(-60, 145, 0)), False)
sketch4.addGeometry(Part.LineSegment(Vector(-60, 100, 0), Vector(-60, 80, 0)), False)
sketch4.addGeometry(Part.LineSegment(Vector(-60, 80, 0), Vector(-42, 80, 0)), False)
sketch4.addGeometry(Part.LineSegment(Vector(-42, 80, 0), Vector(-42, 100, 0)), False)
sketch4.addGeometry(Part.LineSegment(Vector(-42, 100, 0), Vector(-60, 100, 0)), False)
sketch4.addGeometry(Part.LineSegment(Vector(-60, 55, 0), Vector(-60, 35, 0)), False)
sketch4.addGeometry(Part.LineSegment(Vector(-60, 35, 0), Vector(-42, 35, 0)), False)
sketch4.addGeometry(Part.LineSegment(Vector(-42, 35, 0), Vector(-42, 55, 0)), False)
sketch4.addGeometry(Part.LineSegment(Vector(-42, 55, 0), Vector(-60, 55, 0)), False)
sketch4.addGeometry(Part.LineSegment(Vector(-60, 10, 0), Vector(-60, -10, 0)), False)
sketch4.addGeometry(Part.LineSegment(Vector(-60, -10, 0), Vector(-42, -10, 0)), False)
sketch4.addGeometry(Part.LineSegment(Vector(-42, -10, 0), Vector(-42, 10, 0)), False)
sketch4.addGeometry(Part.LineSegment(Vector(-42, 10, 0), Vector(-60, 10, 0)), False)
sketch4.addGeometry(Part.LineSegment(Vector(-60, -35, 0), Vector(-60, -55, 0)), False)
sketch4.addGeometry(Part.LineSegment(Vector(-60, -55, 0), Vector(-42, -55, 0)), False)
sketch4.addGeometry(Part.LineSegment(Vector(-42, -55, 0), Vector(-42, -35, 0)), False)
sketch4.addGeometry(Part.LineSegment(Vector(-42, -35, 0), Vector(-60, -35, 0)), False)
sketch4.addGeometry(Part.LineSegment(Vector(-60, -80, 0), Vector(-60, -100, 0)), False)
sketch4.addGeometry(Part.LineSegment(Vector(-60, -100, 0), Vector(-42, -100, 0)), False)
sketch4.addGeometry(Part.LineSegment(Vector(-42, -100, 0), Vector(-42, -80, 0)), False)
sketch4.addGeometry(Part.LineSegment(Vector(-42, -80, 0), Vector(-60, -80, 0)), False)
sketch4.addGeometry(Part.LineSegment(Vector(-60, -125, 0), Vector(-60, -145, 0)), False)
sketch4.addGeometry(Part.LineSegment(Vector(-60, -145, 0), Vector(-42, -145, 0)), False)
sketch4.addGeometry(Part.LineSegment(Vector(-42, -145, 0), Vector(-42, -125, 0)), False)
sketch4.addGeometry(Part.LineSegment(Vector(-42, -125, 0), Vector(-60, -125, 0)), False)
sketch4.addGeometry(Part.LineSegment(Vector(-60, -170, 0), Vector(-60, -190, 0)), False)
sketch4.addGeometry(Part.LineSegment(Vector(-60, -190, 0), Vector(-42, -190, 0)), False)
sketch4.addGeometry(Part.LineSegment(Vector(-42, -190, 0), Vector(-42, -170, 0)), False)
sketch4.addGeometry(Part.LineSegment(Vector(-42, -170, 0), Vector(-60, -170, 0)), False)
sketch4.addConstraint(Sketcher.Constraint("Coincident", 0, 2, 1, 1))
sketch4.addConstraint(Sketcher.Constraint("Coincident", 1, 2, 2, 1))
sketch4.addConstraint(Sketcher.Constraint("Coincident", 2, 2, 3, 1))
sketch4.addConstraint(Sketcher.Constraint("Coincident", 3, 2, 0, 1))
sketch4.addConstraint(Sketcher.Constraint("Coincident", 4, 2, 5, 1))
sketch4.addConstraint(Sketcher.Constraint("Coincident", 5, 2, 6, 1))
sketch4.addConstraint(Sketcher.Constraint("Coincident", 6, 2, 7, 1))
sketch4.addConstraint(Sketcher.Constraint("Coincident", 7, 2, 4, 1))
sketch4.addConstraint(Sketcher.Constraint("Coincident", 8, 2, 9, 1))
sketch4.addConstraint(Sketcher.Constraint("Coincident", 9, 2, 10, 1))
sketch4.addConstraint(Sketcher.Constraint("Coincident", 10, 2, 11, 1))
sketch4.addConstraint(Sketcher.Constraint("Coincident", 11, 2, 8, 1))
sketch4.addConstraint(Sketcher.Constraint("Coincident", 12, 2, 13, 1))
sketch4.addConstraint(Sketcher.Constraint("Coincident", 13, 2, 14, 1))
sketch4.addConstraint(Sketcher.Constraint("Coincident", 14, 2, 15, 1))
sketch4.addConstraint(Sketcher.Constraint("Coincident", 15, 2, 12, 1))
sketch4.addConstraint(Sketcher.Constraint("Coincident", 16, 2, 17, 1))
sketch4.addConstraint(Sketcher.Constraint("Coincident", 17, 2, 18, 1))
sketch4.addConstraint(Sketcher.Constraint("Coincident", 18, 2, 19, 1))
sketch4.addConstraint(Sketcher.Constraint("Coincident", 19, 2, 16, 1))
sketch4.addConstraint(Sketcher.Constraint("Coincident", 20, 2, 21, 1))
sketch4.addConstraint(Sketcher.Constraint("Coincident", 21, 2, 22, 1))
sketch4.addConstraint(Sketcher.Constraint("Coincident", 22, 2, 23, 1))
sketch4.addConstraint(Sketcher.Constraint("Coincident", 23, 2, 20, 1))
sketch4.addConstraint(Sketcher.Constraint("Coincident", 24, 2, 25, 1))
sketch4.addConstraint(Sketcher.Constraint("Coincident", 25, 2, 26, 1))
sketch4.addConstraint(Sketcher.Constraint("Coincident", 26, 2, 27, 1))
sketch4.addConstraint(Sketcher.Constraint("Coincident", 27, 2, 24, 1))
sketch4.addConstraint(Sketcher.Constraint("Coincident", 28, 2, 29, 1))
sketch4.addConstraint(Sketcher.Constraint("Coincident", 29, 2, 30, 1))
sketch4.addConstraint(Sketcher.Constraint("Coincident", 30, 2, 31, 1))
sketch4.addConstraint(Sketcher.Constraint("Coincident", 31, 2, 28, 1))
sketch4.addConstraint(Sketcher.Constraint("Coincident", 32, 2, 33, 1))
sketch4.addConstraint(Sketcher.Constraint("Coincident", 33, 2, 34, 1))
sketch4.addConstraint(Sketcher.Constraint("Coincident", 34, 2, 35, 1))
sketch4.addConstraint(Sketcher.Constraint("Coincident", 35, 2, 32, 1))
sketch4.addConstraint(Sketcher.Constraint("Vertical", 0))
sketch4.addConstraint(Sketcher.Constraint("Horizontal", 1))
sketch4.addConstraint(Sketcher.Constraint("Vertical", 2))
sketch4.addConstraint(Sketcher.Constraint("Horizontal", 3))
sketch4.addConstraint(Sketcher.Constraint("Vertical", 4))
sketch4.addConstraint(Sketcher.Constraint("Horizontal", 5))
sketch4.addConstraint(Sketcher.Constraint("Vertical", 6))
sketch4.addConstraint(Sketcher.Constraint("Horizontal", 7))
sketch4.addConstraint(Sketcher.Constraint("Vertical", 8))
sketch4.addConstraint(Sketcher.Constraint("Horizontal", 9))
sketch4.addConstraint(Sketcher.Constraint("Vertical", 10))
sketch4.addConstraint(Sketcher.Constraint("Horizontal", 11))
sketch4.addConstraint(Sketcher.Constraint("Vertical", 12))
sketch4.addConstraint(Sketcher.Constraint("Horizontal", 13))
sketch4.addConstraint(Sketcher.Constraint("Vertical", 14))
sketch4.addConstraint(Sketcher.Constraint("Horizontal", 15))
sketch4.addConstraint(Sketcher.Constraint("Vertical", 16))
sketch4.addConstraint(Sketcher.Constraint("Horizontal", 17))
sketch4.addConstraint(Sketcher.Constraint("Vertical", 18))
sketch4.addConstraint(Sketcher.Constraint("Horizontal", 19))
sketch4.addConstraint(Sketcher.Constraint("Vertical", 20))
sketch4.addConstraint(Sketcher.Constraint("Horizontal", 21))
sketch4.addConstraint(Sketcher.Constraint("Vertical", 22))
sketch4.addConstraint(Sketcher.Constraint("Horizontal", 23))
sketch4.addConstraint(Sketcher.Constraint("Vertical", 24))
sketch4.addConstraint(Sketcher.Constraint("Horizontal", 25))
sketch4.addConstraint(Sketcher.Constraint("Vertical", 26))
sketch4.addConstraint(Sketcher.Constraint("Horizontal", 27))
sketch4.addConstraint(Sketcher.Constraint("Vertical", 28))
sketch4.addConstraint(Sketcher.Constraint("Horizontal", 29))
sketch4.addConstraint(Sketcher.Constraint("Vertical", 30))
sketch4.addConstraint(Sketcher.Constraint("Horizontal", 31))
sketch4.addConstraint(Sketcher.Constraint("Vertical", 32))
sketch4.addConstraint(Sketcher.Constraint("Horizontal", 33))
sketch4.addConstraint(Sketcher.Constraint("Vertical", 34))
sketch4.addConstraint(Sketcher.Constraint("Horizontal", 35))
sketch4.addConstraint(Sketcher.Constraint("Symmetric", 15, 2, 20, 2, -1))
sketch4.addConstraint(Sketcher.Constraint("Symmetric", 13, 2, 22, 2, -1))
sketch4.addConstraint(Sketcher.Constraint("Symmetric", 11, 2, 24, 2, -1))
sketch4.addConstraint(Sketcher.Constraint("Symmetric", 9, 2, 26, 2, -1))
sketch4.addConstraint(Sketcher.Constraint("Symmetric", 7, 2, 28, 2, -1))
sketch4.addConstraint(Sketcher.Constraint("Symmetric", 5, 2, 30, 2, -1))
sketch4.addConstraint(Sketcher.Constraint("Symmetric", 3, 2, 32, 2, -1))
sketch4.addConstraint(Sketcher.Constraint("Symmetric", 1, 2, 34, 2, -1))
sketch4.addConstraint(Sketcher.Constraint("Vertical", 3, 2, 4, 2))
sketch4.addConstraint(Sketcher.Constraint("Vertical", 2, 2, 5, 2))
sketch4.addConstraint(Sketcher.Constraint("Vertical", 7, 2, 8, 2))
sketch4.addConstraint(Sketcher.Constraint("Vertical", 6, 2, 9, 2))
sketch4.addConstraint(Sketcher.Constraint("Vertical", 11, 2, 12, 2))
sketch4.addConstraint(Sketcher.Constraint("Vertical", 10, 2, 13, 2))
sketch4.addConstraint(Sketcher.Constraint("Vertical", 15, 2, 16, 2))
sketch4.addConstraint(Sketcher.Constraint("Vertical", 14, 2, 17, 2))
sketch4.addConstraint(Sketcher.Constraint("Equal", 2, 4))
sketch4.addConstraint(Sketcher.Constraint("Equal", 6, 8))
sketch4.addConstraint(Sketcher.Constraint("Equal", 10, 12))
sketch4.addConstraint(Sketcher.Constraint("Equal", 14, 16))
sketch4.addConstraint(Sketcher.Constraint("DistanceX", 1, 1, 1, 2, Q("18 mm")))
sketch4.addConstraint(Sketcher.Constraint("DistanceY", 0, 2, 0, 1, Q("20 mm")))
sketch4.addConstraint(Sketcher.Constraint("DistanceX", 0, 2, -1, 1, Q("60 mm")))
sketch4.addConstraint(Sketcher.Constraint("DistanceY", -1, 1, 0, 2, Q("170 mm")))
sketch4.addConstraint(Sketcher.Constraint("DistanceY", -1, 1, 4, 2, Q("125 mm")))
sketch4.addConstraint(Sketcher.Constraint("DistanceY", -1, 1, 8, 2, Q("80 mm")))
sketch4.addConstraint(Sketcher.Constraint("DistanceY", -1, 1, 12, 2, Q("35 mm")))
sketch4.addConstraint(Sketcher.Constraint("DistanceY", 16, 2, -1, 1, Q("10 mm")))
pocket2 = body.newObject("PartDesign::Pocket", "Pocket001")
pocket2.Profile = sketch4
pocket2.Length = 10

doc.recompute()
